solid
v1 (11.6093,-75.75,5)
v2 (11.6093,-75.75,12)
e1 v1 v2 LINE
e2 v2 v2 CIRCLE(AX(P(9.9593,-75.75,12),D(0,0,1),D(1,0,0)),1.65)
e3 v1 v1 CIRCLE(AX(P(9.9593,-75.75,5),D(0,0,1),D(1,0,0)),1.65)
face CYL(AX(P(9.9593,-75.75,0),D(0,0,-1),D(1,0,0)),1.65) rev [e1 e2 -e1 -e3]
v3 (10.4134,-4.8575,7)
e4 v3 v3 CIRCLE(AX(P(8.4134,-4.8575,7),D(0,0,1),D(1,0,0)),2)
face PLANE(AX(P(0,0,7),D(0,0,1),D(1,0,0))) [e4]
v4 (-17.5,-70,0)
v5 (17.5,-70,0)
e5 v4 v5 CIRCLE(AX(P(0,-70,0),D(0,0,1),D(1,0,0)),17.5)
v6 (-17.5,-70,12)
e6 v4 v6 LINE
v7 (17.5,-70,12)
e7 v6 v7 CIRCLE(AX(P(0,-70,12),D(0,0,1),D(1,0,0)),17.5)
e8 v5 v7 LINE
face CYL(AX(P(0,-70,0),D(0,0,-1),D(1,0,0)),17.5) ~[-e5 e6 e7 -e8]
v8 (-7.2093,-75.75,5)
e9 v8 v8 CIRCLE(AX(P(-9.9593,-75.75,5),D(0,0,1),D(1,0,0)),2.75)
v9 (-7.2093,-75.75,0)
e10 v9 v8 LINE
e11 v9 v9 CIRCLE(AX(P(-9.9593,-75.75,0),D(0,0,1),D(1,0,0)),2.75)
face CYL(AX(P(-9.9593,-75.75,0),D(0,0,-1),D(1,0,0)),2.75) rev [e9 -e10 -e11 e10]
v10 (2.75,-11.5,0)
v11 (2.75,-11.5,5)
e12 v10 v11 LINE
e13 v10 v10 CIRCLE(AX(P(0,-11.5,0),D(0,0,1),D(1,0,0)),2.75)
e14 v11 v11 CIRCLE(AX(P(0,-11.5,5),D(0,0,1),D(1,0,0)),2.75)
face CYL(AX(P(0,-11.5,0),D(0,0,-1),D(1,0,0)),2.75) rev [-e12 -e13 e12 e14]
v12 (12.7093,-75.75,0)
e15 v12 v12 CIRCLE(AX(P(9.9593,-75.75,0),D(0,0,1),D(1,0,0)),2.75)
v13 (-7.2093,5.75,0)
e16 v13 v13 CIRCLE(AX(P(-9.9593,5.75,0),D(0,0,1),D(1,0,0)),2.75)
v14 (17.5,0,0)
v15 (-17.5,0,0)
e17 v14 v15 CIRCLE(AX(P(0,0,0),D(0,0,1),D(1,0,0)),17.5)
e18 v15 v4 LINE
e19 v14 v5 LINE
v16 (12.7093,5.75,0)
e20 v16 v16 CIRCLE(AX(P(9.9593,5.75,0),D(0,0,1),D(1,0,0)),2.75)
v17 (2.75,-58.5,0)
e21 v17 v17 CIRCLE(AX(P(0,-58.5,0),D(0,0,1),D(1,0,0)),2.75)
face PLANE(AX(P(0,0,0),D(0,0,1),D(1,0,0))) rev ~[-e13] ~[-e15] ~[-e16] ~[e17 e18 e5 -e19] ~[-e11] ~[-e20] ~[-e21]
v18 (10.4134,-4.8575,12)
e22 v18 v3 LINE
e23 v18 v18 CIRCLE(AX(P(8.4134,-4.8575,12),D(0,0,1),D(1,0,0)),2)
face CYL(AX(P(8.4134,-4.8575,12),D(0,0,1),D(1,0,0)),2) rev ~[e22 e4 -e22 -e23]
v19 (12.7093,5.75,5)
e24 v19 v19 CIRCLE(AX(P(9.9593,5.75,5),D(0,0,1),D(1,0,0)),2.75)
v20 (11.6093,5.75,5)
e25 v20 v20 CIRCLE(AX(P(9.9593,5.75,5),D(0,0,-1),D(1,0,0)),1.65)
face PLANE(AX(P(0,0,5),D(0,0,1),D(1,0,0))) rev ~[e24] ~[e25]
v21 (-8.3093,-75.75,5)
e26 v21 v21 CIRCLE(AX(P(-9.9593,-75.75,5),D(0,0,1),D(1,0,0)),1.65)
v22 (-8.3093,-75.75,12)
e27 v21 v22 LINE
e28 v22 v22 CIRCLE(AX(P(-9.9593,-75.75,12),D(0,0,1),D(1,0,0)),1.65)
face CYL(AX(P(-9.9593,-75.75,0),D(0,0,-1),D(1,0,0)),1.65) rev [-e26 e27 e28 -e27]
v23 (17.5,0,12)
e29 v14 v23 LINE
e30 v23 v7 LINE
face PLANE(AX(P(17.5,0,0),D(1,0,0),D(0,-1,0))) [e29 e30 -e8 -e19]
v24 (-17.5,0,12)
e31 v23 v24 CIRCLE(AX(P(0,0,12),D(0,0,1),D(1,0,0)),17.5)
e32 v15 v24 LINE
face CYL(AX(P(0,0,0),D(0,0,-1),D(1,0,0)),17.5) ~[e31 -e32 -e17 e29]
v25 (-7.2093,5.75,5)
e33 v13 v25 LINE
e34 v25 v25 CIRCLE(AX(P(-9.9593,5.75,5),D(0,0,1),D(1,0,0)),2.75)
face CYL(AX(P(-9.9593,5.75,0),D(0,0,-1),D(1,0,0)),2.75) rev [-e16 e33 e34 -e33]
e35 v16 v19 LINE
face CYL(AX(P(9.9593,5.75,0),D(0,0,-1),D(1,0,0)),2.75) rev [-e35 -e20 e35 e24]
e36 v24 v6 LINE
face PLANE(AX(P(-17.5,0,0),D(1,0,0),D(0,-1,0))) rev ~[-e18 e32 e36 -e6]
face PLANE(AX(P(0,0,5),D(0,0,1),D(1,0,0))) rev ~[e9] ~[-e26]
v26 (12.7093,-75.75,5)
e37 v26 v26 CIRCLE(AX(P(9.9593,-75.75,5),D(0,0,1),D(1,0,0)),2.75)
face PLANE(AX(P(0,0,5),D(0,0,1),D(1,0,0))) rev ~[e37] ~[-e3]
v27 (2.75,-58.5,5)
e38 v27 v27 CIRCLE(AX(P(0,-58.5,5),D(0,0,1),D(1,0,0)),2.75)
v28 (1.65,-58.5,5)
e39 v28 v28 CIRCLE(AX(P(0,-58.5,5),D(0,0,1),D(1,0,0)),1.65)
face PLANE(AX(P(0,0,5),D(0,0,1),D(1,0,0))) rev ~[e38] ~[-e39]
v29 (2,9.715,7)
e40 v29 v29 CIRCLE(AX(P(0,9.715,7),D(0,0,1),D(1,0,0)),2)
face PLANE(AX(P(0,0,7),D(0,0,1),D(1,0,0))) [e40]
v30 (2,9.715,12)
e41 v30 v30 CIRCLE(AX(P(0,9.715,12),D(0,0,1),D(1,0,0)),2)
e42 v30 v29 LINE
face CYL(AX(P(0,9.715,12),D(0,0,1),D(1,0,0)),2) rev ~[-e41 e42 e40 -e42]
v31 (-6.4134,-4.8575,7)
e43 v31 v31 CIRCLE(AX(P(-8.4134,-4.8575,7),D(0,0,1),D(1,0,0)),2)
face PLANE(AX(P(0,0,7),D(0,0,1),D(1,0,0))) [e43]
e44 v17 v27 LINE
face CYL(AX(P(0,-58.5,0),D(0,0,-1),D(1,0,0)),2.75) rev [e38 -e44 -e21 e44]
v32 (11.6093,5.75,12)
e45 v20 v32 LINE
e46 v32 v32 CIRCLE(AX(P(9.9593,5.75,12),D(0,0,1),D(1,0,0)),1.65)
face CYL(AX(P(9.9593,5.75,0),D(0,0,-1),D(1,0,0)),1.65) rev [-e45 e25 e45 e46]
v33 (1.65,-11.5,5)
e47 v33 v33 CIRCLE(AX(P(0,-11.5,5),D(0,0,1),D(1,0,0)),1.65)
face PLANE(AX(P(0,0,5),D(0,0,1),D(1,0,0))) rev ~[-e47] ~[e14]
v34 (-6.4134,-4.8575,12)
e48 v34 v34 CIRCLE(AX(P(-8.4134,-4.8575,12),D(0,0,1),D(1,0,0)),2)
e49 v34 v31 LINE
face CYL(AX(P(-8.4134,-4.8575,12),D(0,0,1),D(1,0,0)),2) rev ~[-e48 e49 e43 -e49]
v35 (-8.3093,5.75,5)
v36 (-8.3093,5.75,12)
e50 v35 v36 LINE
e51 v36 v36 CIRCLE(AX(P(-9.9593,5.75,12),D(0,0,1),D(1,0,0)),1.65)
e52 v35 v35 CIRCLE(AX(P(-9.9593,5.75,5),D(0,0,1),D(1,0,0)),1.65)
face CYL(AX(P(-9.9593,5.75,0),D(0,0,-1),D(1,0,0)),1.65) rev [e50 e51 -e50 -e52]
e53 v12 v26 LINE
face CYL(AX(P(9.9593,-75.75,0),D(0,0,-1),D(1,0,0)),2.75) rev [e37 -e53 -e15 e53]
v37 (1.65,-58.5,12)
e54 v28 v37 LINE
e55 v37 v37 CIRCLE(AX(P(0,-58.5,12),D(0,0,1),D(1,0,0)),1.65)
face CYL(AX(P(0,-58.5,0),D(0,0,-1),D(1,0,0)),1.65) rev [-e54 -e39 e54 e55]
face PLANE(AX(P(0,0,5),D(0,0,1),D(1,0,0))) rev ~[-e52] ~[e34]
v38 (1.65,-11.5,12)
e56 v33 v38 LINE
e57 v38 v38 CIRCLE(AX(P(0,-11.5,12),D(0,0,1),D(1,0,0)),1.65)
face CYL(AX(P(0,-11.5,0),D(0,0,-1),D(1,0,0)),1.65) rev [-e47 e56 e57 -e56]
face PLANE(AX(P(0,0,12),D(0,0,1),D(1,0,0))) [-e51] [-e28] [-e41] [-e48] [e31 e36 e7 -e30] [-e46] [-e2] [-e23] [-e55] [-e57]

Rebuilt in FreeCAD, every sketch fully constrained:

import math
import FreeCAD as App
import Part
import Sketcher
Q = App.Units.Quantity

doc = App.newDocument("Part")
body = doc.addObject("PartDesign::Body", "Body")

# Sketch on XY plane
sketch1 = doc.addObject("Sketcher::SketchObject", "Sketch")
body.addObject(sketch1)
sketch1.AttachmentSupport = (doc.XY_Plane, [""])
sketch1.MapMode = "FlatFace"
sketch1.addGeometry([
    Part.ArcOfCircle(Part.Circle(App.Vector(0, 0, 0), App.Vector(0, 0, 1), 17.5), math.radians(0), math.radians(180)),  # 0
    Part.LineSegment(App.Vector(-17.5, 0, 0), App.Vector(-17.5, -70, 0)),  # 1
    Part.ArcOfCircle(Part.Circle(App.Vector(0, -70, 0), App.Vector(0, 0, 1), 17.5), math.radians(180), math.radians(360)),  # 2
    Part.LineSegment(App.Vector(17.5, -70, 0), App.Vector(17.5, 0, 0)),  # 3
    Part.Circle(App.Vector(-10, 5.8, 0), App.Vector(0, 0, 1), 1.6),  # 4
    Part.Circle(App.Vector(0, -11.5, 0), App.Vector(0, 0, 1), 1.6),  # 5
    Part.Circle(App.Vector(10, 5.8, 0), App.Vector(0, 0, 1), 1.6),  # 6
    Part.Circle(App.Vector(0, -58.5, 0), App.Vector(0, 0, 1), 1.6),  # 7
    Part.Circle(App.Vector(-10, -75.8, 0), App.Vector(0, 0, 1), 1.6),  # 8
    Part.Circle(App.Vector(10, -75.8, 0), App.Vector(0, 0, 1), 1.6),  # 9
], False)
sketch1.addConstraint([
    Sketcher.Constraint("Tangent", 0, 2, 1, 1),
    Sketcher.Constraint("Tangent", 1, 2, 2, 1),
    Sketcher.Constraint("Tangent", 2, 2, 3, 1),
    Sketcher.Constraint("Tangent", 3, 2, 0, 1),
    Sketcher.Constraint("Vertical", 1),
    Sketcher.Constraint("Vertical", 3),
    Sketcher.Constraint("Coincident", 0, 3, -1, 1),
    Sketcher.Constraint("Equal", 4, 5),
    Sketcher.Constraint("Equal", 5, 6),
    Sketcher.Constraint("Equal", 6, 7),
    Sketcher.Constraint("Equal", 7, 8),
    Sketcher.Constraint("Equal", 8, 9),
    Sketcher.Constraint("Symmetric", 4, 3, 6, 3, -2),
    Sketcher.Constraint("Symmetric", 8, 3, 9, 3, -2),
    Sketcher.Constraint("PointOnObject", 5, 3, -2),
    Sketcher.Constraint("PointOnObject", 7, 3, -2),
    Sketcher.Constraint("Vertical", 4, 3, 8, 3),
    Sketcher.Constraint("Diameter", 4, Q("3.3 mm")),
    Sketcher.Constraint("Radius", 0, Q("17.5 mm")),
    Sketcher.Constraint("DistanceY", 1, 2, 1, 1, Q("70 mm")),
    Sketcher.Constraint("DistanceY", 7, 3, 5, 3, Q("47 mm")),
    Sketcher.Constraint("DistanceY", 5, 3, -1, 1, Q("11.5 mm")),
    Sketcher.Constraint("DistanceY", 8, 3, 4, 3, Q("81.5 mm")),
    Sketcher.Constraint("DistanceY", -1, 1, 4, 3, Q("5.75 mm")),
    Sketcher.Constraint("DistanceX", 4, 3, -1, 1, Q("9.9593 mm")),
])
pad1 = doc.addObject("PartDesign::Pad", "Pad")
body.addObject(pad1)
pad1.Profile = sketch1
pad1.Length = 12

# Sketch on XY plane
sketch2 = doc.addObject("Sketcher::SketchObject", "Sketch001")
body.addObject(sketch2)
sketch2.AttachmentSupport = (doc.XY_Plane, [""])
sketch2.MapMode = "FlatFace"
sketch2.addGeometry([
    Part.Circle(App.Vector(0, -58.5, 0), App.Vector(0, 0, 1), 2.8),  # 0
    Part.Circle(App.Vector(0, -58.5, 0), App.Vector(0, 0, 1), 1.6),  # 1
    Part.Circle(App.Vector(10, -75.8, 0), App.Vector(0, 0, 1), 2.8),  # 2
    Part.Circle(App.Vector(10, -75.8, 0), App.Vector(0, 0, 1), 1.6),  # 3
    Part.Circle(App.Vector(-10, -75.8, 0), App.Vector(0, 0, 1), 2.8),  # 4
    Part.Circle(App.Vector(-10, -75.8, 0), App.Vector(0, 0, 1), 1.6),  # 5
    Part.Circle(App.Vector(-10, 5.8, 0), App.Vector(0, 0, 1), 2.8),  # 6
    Part.Circle(App.Vector(-10, 5.8, 0), App.Vector(0, 0, 1), 1.6),  # 7
    Part.Circle(App.Vector(0, -11.5, 0), App.Vector(0, 0, 1), 2.8),  # 8
    Part.Circle(App.Vector(0, -11.5, 0), App.Vector(0, 0, 1), 1.6),  # 9
    Part.Circle(App.Vector(10, 5.8, 0), App.Vector(0, 0, 1), 2.8),  # 10
], False)
sketch2.addConstraint([
    Sketcher.Constraint("Coincident", 1, 3, 0, 3),
    Sketcher.Constraint("Coincident", 3, 3, 2, 3),
    Sketcher.Constraint("Coincident", 5, 3, 4, 3),
    Sketcher.Constraint("Coincident", 7, 3, 6, 3),
    Sketcher.Constraint("Coincident", 9, 3, 8, 3),
    Sketcher.Constraint("Equal", 0, 2),
    Sketcher.Constraint("Equal", 1, 3),
    Sketcher.Constraint("Equal", 2, 4),
    Sketcher.Constraint("Equal", 3, 5),
    Sketcher.Constraint("Equal", 4, 6),
    Sketcher.Constraint("Equal", 5, 7),
    Sketcher.Constraint("Equal", 6, 8),
    Sketcher.Constraint("Equal", 7, 9),
    Sketcher.Constraint("Equal", 8, 10),
    Sketcher.Constraint("Symmetric", 2, 3, 4, 3, -2),
    Sketcher.Constraint("Symmetric", 6, 3, 10, 3, -2),
    Sketcher.Constraint("PointOnObject", 0, 3, -2),
    Sketcher.Constraint("PointOnObject", 8, 3, -2),
    Sketcher.Constraint("Vertical", 5, 3, 6, 3),
    Sketcher.Constraint("Diameter", 0, Q("5.5 mm")),
    Sketcher.Constraint("Diameter", 1, Q("3.3 mm")),
    Sketcher.Constraint("DistanceY", 0, 3, 8, 3, Q("47 mm")),
    Sketcher.Constraint("DistanceY", 0, 3, -1, 1, Q("58.5 mm")),
    Sketcher.Constraint("DistanceY", 4, 3, 6, 3, Q("81.5 mm")),
    Sketcher.Constraint("DistanceY", 2, 3, -1, 1, Q("75.75 mm")),
    Sketcher.Constraint("DistanceX", -1, 1, 2, 3, Q("9.9593 mm")),
])
pocket1 = doc.addObject("PartDesign::Pocket", "Pocket")
body.addObject(pocket1)
pocket1.Profile = sketch2
pocket1.Length = 5
pocket1.Reversed = True

# Sketch on XY plane
sketch3 = doc.addObject("Sketcher::SketchObject", "Sketch002")
body.addObject(sketch3)
sketch3.AttachmentSupport = (doc.XY_Plane, [""])
sketch3.MapMode = "FlatFace"
sketch3.AttachmentOffset = App.Placement(App.Vector(0, 0, 12), App.Rotation())
sketch3.addGeometry([
    Part.Circle(App.Vector(8.4, -4.9, 0), App.Vector(0, 0, 1), 2),
    Part.Circle(App.Vector(-8.4, -4.9, 0), App.Vector(0, 0, 1), 2),
    Part.Circle(App.Vector(0, 9.7, 0), App.Vector(0, 0, 1), 2),
], False)
sketch3.addConstraint([
    Sketcher.Constraint("Equal", 0, 1),
    Sketcher.Constraint("Equal", 1, 2),
    Sketcher.Constraint("Symmetric", 0, 3, 1, 3, -2),
    Sketcher.Constraint("PointOnObject", 2, 3, -2),
    Sketcher.Constraint("Diameter", 0, Q("4 mm")),
    Sketcher.Constraint("DistanceY", -1, 1, 2, 3, Q("9.715 mm")),
    Sketcher.Constraint("DistanceX", -1, 1, 0, 3, Q("8.4134 mm")),
    Sketcher.Constraint("DistanceY", 0, 3, -1, 1, Q("4.8575 mm")),
])
pocket2 = doc.addObject("PartDesign::Pocket", "Pocket001")
body.addObject(pocket2)
pocket2.Profile = sketch3
pocket2.Length = 5

doc.recompute()
